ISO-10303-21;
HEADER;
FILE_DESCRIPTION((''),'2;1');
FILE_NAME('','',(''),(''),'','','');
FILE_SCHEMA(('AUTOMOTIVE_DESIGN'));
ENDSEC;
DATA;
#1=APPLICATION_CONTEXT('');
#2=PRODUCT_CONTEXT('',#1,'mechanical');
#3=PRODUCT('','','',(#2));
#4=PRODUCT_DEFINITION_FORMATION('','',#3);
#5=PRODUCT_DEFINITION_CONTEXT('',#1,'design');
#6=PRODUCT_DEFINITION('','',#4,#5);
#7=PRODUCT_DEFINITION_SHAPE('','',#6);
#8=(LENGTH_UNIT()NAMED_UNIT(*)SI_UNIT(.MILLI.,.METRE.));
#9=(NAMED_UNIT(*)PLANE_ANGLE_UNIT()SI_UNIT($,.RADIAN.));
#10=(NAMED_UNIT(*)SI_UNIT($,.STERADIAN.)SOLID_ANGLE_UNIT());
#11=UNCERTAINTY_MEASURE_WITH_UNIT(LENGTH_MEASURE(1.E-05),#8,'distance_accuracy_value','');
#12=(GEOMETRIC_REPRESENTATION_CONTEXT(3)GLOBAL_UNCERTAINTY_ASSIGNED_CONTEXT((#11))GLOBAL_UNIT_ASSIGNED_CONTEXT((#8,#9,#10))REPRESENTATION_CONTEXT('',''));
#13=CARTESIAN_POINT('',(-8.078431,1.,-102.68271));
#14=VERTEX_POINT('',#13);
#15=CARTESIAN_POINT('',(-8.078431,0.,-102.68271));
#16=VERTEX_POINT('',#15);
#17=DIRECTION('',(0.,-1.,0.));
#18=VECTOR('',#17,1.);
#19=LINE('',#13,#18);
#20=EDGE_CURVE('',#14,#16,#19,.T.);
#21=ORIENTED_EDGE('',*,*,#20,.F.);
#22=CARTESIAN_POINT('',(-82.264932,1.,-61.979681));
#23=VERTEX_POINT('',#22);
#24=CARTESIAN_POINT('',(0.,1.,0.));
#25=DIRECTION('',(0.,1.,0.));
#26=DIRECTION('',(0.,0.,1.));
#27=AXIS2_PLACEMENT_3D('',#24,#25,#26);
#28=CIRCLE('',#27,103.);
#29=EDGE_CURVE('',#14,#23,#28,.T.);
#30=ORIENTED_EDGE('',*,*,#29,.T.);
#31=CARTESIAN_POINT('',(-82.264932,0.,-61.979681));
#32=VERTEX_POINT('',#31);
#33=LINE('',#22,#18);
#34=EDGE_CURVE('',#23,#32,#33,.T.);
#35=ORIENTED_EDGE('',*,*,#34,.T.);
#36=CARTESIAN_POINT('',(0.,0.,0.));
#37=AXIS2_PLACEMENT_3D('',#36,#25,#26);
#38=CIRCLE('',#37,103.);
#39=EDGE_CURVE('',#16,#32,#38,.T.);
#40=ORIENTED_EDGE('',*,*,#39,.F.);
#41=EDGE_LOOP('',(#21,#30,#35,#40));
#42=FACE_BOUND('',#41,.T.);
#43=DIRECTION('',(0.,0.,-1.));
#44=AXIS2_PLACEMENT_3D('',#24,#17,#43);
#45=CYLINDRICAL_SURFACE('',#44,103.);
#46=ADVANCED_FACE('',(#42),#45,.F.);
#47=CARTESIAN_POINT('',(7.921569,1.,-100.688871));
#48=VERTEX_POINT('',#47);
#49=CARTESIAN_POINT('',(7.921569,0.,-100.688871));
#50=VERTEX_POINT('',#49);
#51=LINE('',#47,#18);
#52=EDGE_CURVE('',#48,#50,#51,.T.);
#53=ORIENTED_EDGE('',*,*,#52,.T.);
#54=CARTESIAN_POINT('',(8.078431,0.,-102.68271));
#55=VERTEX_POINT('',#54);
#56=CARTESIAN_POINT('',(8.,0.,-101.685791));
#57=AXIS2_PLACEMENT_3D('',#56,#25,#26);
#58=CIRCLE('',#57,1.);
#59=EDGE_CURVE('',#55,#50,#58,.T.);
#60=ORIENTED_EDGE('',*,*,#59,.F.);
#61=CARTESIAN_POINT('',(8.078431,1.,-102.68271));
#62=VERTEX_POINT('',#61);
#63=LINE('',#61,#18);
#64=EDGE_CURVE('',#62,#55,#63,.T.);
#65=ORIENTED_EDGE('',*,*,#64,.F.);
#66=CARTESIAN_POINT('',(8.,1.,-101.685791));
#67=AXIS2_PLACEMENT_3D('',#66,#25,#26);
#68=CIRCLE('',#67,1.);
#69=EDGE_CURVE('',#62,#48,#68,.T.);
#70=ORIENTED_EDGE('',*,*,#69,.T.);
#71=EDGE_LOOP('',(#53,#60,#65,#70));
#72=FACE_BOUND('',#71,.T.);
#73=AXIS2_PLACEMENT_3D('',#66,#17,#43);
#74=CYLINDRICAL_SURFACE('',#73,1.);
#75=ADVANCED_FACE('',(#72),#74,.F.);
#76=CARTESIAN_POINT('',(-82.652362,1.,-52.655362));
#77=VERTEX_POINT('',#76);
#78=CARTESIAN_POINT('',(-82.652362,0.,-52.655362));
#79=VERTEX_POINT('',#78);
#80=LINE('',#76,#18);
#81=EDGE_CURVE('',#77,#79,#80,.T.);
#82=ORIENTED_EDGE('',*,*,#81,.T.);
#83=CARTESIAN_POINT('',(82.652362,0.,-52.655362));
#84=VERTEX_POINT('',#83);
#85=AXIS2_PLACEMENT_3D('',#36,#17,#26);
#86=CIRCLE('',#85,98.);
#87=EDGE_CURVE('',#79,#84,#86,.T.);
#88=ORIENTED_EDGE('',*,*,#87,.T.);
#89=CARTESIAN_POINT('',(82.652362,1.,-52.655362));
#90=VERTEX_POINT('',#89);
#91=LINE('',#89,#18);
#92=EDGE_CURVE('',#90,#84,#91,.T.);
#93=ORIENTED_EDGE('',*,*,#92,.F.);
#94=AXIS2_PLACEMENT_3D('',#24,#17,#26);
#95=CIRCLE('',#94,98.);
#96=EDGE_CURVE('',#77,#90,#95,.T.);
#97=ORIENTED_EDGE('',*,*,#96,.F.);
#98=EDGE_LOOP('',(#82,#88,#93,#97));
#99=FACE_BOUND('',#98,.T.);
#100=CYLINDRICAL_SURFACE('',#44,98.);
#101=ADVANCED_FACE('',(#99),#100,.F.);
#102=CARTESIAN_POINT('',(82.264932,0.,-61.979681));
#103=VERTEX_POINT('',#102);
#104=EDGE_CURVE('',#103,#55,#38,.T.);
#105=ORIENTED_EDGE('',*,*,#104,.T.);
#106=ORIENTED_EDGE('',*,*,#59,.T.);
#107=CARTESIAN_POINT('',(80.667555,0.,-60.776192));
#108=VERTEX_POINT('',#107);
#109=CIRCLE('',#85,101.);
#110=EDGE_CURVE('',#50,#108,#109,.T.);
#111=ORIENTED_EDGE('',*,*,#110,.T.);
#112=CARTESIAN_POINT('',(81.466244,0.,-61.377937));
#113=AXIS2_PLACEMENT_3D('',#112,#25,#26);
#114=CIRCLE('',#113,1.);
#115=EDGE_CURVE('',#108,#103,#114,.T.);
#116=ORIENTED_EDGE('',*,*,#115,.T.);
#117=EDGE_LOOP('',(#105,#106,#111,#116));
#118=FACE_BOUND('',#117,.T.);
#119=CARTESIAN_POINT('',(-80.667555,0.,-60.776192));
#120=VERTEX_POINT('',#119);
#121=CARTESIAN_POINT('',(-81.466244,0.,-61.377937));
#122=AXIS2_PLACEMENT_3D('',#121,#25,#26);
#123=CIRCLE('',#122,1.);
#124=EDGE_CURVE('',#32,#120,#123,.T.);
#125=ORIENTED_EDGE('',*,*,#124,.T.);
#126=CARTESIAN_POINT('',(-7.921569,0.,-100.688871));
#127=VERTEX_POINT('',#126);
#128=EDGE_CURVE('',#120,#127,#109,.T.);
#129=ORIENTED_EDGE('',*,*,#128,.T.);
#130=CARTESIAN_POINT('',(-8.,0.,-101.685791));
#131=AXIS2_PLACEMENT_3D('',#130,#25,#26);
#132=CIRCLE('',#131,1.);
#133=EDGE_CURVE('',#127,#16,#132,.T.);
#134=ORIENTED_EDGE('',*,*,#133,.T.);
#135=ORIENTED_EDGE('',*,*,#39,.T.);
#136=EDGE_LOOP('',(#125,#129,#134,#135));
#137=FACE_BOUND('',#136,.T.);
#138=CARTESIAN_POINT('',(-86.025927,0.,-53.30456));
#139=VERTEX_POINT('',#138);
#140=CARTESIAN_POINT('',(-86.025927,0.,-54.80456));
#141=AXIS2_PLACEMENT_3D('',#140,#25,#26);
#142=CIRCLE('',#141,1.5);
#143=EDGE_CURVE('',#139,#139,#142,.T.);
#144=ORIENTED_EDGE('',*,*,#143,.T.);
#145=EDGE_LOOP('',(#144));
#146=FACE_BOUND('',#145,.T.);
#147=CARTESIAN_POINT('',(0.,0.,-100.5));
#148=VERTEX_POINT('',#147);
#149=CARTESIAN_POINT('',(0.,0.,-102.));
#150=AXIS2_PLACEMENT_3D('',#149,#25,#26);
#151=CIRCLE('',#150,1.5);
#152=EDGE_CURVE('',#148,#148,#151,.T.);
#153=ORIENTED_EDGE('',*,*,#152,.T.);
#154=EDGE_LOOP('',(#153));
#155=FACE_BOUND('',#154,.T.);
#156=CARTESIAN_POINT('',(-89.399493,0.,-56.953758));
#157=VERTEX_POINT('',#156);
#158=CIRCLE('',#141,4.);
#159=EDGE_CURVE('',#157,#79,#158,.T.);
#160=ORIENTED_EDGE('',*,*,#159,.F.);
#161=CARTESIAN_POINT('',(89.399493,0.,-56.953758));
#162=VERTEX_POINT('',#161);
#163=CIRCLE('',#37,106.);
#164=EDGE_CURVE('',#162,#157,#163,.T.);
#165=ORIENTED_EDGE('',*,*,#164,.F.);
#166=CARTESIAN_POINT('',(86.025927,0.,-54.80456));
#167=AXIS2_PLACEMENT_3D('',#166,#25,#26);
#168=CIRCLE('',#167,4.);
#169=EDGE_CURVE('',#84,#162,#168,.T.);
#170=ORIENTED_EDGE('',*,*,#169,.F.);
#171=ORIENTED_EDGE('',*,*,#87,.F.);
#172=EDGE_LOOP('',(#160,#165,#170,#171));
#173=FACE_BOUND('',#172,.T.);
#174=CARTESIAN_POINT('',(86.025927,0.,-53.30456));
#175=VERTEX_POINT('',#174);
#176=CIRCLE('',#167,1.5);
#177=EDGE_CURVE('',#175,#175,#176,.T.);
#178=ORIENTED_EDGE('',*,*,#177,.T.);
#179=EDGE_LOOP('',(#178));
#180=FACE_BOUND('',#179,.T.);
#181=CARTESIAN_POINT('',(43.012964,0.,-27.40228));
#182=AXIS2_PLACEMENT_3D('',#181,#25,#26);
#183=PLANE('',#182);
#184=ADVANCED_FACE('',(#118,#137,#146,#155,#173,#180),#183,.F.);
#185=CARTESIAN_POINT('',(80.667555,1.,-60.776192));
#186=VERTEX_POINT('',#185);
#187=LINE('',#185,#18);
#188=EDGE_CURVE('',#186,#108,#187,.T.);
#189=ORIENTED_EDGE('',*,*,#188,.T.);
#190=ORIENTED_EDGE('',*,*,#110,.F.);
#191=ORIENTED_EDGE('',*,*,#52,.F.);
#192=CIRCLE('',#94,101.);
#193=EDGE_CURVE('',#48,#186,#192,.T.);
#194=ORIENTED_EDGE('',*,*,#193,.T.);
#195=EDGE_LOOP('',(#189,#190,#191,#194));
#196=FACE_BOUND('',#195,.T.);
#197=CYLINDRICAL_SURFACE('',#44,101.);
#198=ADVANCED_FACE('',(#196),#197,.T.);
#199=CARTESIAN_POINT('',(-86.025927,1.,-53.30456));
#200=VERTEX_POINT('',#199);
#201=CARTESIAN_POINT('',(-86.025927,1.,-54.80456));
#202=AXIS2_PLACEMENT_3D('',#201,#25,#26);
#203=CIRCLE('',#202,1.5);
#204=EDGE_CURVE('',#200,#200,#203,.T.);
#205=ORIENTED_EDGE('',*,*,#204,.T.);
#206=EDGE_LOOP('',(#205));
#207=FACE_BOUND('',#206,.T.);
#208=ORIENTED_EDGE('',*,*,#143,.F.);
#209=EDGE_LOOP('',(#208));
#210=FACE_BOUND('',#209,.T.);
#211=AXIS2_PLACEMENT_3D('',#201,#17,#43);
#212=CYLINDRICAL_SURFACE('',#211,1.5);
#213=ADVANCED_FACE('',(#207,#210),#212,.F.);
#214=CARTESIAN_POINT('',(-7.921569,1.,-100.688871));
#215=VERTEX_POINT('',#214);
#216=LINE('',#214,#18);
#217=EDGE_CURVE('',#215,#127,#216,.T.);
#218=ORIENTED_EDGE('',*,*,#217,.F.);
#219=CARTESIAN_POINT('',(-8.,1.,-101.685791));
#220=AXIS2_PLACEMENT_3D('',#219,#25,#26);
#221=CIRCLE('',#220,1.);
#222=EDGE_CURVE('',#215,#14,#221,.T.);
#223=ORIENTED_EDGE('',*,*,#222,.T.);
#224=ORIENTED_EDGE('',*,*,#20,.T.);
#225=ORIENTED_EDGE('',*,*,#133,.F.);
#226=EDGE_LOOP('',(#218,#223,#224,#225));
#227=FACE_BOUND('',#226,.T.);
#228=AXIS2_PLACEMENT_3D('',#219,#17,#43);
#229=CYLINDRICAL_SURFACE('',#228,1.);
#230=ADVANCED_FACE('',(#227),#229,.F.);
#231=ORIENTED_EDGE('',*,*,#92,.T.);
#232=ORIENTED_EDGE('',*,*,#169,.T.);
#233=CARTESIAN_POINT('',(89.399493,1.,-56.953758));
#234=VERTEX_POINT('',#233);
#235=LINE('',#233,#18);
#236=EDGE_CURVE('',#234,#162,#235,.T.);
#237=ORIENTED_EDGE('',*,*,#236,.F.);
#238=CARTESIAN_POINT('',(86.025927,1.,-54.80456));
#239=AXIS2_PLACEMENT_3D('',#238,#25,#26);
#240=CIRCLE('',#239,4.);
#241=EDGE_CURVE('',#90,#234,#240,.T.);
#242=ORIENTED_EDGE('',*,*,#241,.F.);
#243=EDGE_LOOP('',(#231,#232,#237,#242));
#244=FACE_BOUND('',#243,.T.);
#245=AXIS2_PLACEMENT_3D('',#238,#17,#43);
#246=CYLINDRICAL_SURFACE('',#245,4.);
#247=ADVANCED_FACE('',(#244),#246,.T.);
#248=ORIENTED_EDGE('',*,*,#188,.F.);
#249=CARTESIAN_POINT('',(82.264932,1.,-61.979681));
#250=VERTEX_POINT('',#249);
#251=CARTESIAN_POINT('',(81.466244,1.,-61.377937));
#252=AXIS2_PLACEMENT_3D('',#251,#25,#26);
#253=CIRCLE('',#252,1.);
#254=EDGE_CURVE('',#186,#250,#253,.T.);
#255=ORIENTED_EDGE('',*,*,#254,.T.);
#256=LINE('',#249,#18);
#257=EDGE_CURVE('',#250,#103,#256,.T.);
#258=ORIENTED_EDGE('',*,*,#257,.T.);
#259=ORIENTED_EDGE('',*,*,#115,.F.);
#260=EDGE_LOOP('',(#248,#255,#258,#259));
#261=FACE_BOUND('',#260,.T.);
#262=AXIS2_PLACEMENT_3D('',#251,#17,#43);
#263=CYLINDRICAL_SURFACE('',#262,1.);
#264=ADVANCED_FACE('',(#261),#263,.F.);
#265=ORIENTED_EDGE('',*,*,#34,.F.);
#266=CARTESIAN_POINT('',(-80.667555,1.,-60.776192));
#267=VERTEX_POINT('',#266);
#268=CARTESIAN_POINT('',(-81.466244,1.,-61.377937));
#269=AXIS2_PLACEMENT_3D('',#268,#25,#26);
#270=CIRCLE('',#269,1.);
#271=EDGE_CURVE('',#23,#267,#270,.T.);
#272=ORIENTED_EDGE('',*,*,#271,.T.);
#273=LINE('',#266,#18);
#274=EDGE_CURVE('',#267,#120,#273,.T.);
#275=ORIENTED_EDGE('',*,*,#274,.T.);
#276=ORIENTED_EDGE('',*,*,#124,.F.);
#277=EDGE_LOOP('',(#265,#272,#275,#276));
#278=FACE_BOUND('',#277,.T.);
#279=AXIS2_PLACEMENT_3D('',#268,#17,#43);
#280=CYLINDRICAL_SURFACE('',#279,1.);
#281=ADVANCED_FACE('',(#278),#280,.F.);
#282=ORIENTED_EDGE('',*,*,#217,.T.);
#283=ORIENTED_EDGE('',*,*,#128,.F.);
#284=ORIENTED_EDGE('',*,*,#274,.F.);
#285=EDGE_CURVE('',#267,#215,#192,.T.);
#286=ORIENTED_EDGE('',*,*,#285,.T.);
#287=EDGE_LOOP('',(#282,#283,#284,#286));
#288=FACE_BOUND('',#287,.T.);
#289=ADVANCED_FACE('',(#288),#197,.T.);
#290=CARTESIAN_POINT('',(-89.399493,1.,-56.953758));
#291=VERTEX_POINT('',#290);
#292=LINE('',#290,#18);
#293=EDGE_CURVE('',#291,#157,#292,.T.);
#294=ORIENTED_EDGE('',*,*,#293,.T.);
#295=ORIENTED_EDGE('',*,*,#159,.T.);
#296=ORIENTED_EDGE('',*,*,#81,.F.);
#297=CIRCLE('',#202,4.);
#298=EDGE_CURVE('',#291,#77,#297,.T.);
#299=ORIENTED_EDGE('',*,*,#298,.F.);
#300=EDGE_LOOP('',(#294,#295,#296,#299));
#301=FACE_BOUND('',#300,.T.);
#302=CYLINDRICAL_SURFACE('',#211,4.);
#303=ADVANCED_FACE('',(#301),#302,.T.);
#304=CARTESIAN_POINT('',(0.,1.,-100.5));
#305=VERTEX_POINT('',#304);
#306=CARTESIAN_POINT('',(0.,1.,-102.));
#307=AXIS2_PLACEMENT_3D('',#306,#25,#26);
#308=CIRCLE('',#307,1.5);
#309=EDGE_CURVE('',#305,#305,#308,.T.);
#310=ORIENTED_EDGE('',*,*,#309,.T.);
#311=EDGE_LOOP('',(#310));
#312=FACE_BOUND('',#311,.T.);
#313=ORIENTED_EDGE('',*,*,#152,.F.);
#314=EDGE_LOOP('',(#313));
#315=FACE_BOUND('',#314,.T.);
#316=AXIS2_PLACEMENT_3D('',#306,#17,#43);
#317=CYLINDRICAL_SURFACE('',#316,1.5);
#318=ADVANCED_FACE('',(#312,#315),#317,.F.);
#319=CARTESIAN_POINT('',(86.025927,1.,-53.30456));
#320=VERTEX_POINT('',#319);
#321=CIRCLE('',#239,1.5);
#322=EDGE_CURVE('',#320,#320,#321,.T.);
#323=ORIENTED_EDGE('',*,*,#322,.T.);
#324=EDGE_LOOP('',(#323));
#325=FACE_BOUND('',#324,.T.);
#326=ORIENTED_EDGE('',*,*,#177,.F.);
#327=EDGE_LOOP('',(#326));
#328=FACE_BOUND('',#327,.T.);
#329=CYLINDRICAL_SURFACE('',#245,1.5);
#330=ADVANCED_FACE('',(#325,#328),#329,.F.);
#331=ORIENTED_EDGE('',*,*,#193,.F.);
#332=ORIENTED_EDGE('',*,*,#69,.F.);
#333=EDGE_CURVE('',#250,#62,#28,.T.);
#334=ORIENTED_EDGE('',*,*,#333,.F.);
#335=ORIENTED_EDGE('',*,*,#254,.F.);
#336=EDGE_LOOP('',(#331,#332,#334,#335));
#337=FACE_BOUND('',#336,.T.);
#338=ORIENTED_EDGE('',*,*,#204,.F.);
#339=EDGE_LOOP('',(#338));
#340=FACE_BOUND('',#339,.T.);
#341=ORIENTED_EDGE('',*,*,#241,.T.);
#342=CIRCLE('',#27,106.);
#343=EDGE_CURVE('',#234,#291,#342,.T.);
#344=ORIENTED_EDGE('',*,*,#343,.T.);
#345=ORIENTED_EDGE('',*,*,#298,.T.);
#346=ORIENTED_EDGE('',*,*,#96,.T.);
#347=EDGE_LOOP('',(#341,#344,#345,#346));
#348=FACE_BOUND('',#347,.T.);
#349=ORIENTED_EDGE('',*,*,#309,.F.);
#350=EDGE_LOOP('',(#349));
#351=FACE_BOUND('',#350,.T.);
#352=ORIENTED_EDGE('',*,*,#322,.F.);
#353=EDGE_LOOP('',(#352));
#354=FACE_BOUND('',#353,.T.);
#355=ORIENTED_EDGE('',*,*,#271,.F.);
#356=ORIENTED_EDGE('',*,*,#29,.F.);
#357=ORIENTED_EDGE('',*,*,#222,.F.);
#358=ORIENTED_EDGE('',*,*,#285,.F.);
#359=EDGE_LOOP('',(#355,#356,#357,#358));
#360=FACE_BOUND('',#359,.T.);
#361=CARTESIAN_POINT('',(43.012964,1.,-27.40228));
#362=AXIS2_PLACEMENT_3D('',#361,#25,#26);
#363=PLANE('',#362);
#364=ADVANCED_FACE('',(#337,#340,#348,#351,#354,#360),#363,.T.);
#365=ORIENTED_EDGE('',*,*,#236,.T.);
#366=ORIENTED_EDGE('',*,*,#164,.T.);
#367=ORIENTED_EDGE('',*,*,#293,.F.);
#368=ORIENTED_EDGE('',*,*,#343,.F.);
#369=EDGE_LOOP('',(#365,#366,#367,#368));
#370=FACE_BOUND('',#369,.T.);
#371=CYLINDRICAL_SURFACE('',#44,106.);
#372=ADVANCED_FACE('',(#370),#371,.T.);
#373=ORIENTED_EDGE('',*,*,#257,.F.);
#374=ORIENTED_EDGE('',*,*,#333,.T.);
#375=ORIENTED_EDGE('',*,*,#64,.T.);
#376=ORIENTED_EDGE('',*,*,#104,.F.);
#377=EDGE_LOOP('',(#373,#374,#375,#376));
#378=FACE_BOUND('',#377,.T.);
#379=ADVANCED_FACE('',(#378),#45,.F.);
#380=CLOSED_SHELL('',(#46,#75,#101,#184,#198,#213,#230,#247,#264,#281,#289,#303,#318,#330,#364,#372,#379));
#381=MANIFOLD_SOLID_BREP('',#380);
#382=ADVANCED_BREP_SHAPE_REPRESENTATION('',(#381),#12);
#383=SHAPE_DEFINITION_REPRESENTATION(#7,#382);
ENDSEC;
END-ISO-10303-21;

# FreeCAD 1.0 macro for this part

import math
import FreeCAD as App
import Part
import Sketcher
Q = App.Units.Quantity

doc = App.newDocument("Part")
body = doc.addObject("PartDesign::Body", "Body")

sketch1 = body.newObject("Sketcher::SketchObject", "Sketch")
sketch1.AttachmentSupport = (doc.getObject("XZ_Plane"), [""])
sketch1.MapMode = "FlatFace"
sketch1.addGeometry(Part.ArcOfCircle(Part.Circle(App.Vector(0, 0, 0), App.Vector(0, 0, 1), 106), math.radians(-147.5), math.radians(-32.5)), False)
sketch1.addGeometry(Part.ArcOfCircle(Part.Circle(App.Vector(-86.025927, -54.80456, 0), App.Vector(0, 0, 1), 4), math.radians(32.5), math.radians(212.5)), False)
sketch1.addGeometry(Part.ArcOfCircle(Part.Circle(App.Vector(0, 0, 0), App.Vector(0, 0, 1), 98), math.radians(-147.5), math.radians(-32.5)), False)
sketch1.addGeometry(Part.ArcOfCircle(Part.Circle(App.Vector(86.025927, -54.80456, 0), App.Vector(0, 0, 1), 4), math.radians(-32.5), math.radians(147.5)), False)
sketch1.addGeometry(Part.Circle(App.Vector(-86.025927, -54.80456, 0), App.Vector(0, 0, 1), 1.5), False)
sketch1.addGeometry(Part.Circle(App.Vector(86.025927, -54.80456, 0), App.Vector(0, 0, 1), 1.5), False)
sketch1.addGeometry(Part.ArcOfCircle(Part.Circle(App.Vector(0, 0, 0), App.Vector(0, 0, 1), 103), math.radians(-143.005061), math.radians(-94.498407)), False)
sketch1.addGeometry(Part.ArcOfCircle(Part.Circle(App.Vector(-8, -101.685791, 0), App.Vector(0, 0, 1), 1), math.radians(-94.498407), math.radians(85.501593)), False)
sketch1.addGeometry(Part.ArcOfCircle(Part.Circle(App.Vector(0, 0, 0), App.Vector(0, 0, 1), 101), math.radians(-143.005061), math.radians(-94.498407)), False)
sketch1.addGeometry(Part.ArcOfCircle(Part.Circle(App.Vector(-81.466244, -61.377937, 0), App.Vector(0, 0, 1), 1), math.radians(36.994939), math.radians(216.994939)), False)
sketch1.addGeometry(Part.ArcOfCircle(Part.Circle(App.Vector(0, 0, 0), App.Vector(0, 0, 1), 103), math.radians(-85.501593), math.radians(-36.994939)), False)
sketch1.addGeometry(Part.ArcOfCircle(Part.Circle(App.Vector(81.466244, -61.377937, 0), App.Vector(0, 0, 1), 1), math.radians(-36.994939), math.radians(143.005061)), False)
sketch1.addGeometry(Part.ArcOfCircle(Part.Circle(App.Vector(0, 0, 0), App.Vector(0, 0, 1), 101), math.radians(-85.501593), math.radians(-36.994939)), False)
sketch1.addGeometry(Part.ArcOfCircle(Part.Circle(App.Vector(8, -101.685791, 0), App.Vector(0, 0, 1), 1), math.radians(94.498407), math.radians(274.498407)), False)
sketch1.addGeometry(Part.Circle(App.Vector(0, -102, 0), App.Vector(0, 0, 1), 1.5), False)
sketch1.addConstraint(Sketcher.Constraint("Tangent", 0, 1, 1, 2))
sketch1.addConstraint(Sketcher.Constraint("Tangent", 1, 1, 2, 1))
sketch1.addConstraint(Sketcher.Constraint("Tangent", 2, 2, 3, 2))
sketch1.addConstraint(Sketcher.Constraint("Tangent", 3, 1, 0, 2))
sketch1.addConstraint(Sketcher.Constraint("Tangent", 6, 2, 7, 1))
sketch1.addConstraint(Sketcher.Constraint("Tangent", 7, 2, 8, 2))
sketch1.addConstraint(Sketcher.Constraint("Tangent", 8, 1, 9, 1))
sketch1.addConstraint(Sketcher.Constraint("Tangent", 9, 2, 6, 1))
sketch1.addConstraint(Sketcher.Constraint("Tangent", 10, 2, 11, 1))
sketch1.addConstraint(Sketcher.Constraint("Tangent", 11, 2, 12, 2))
sketch1.addConstraint(Sketcher.Constraint("Tangent", 12, 1, 13, 1))
sketch1.addConstraint(Sketcher.Constraint("Tangent", 13, 2, 10, 1))
sketch1.addConstraint(Sketcher.Constraint("Coincident", 0, 3, -1, 1))
sketch1.addConstraint(Sketcher.Constraint("Coincident", 2, 3, -1, 1))
sketch1.addConstraint(Sketcher.Constraint("Coincident", 6, 3, -1, 1))
sketch1.addConstraint(Sketcher.Constraint("Coincident", 8, 3, -1, 1))
sketch1.addConstraint(Sketcher.Constraint("Coincident", 10, 3, -1, 1))
sketch1.addConstraint(Sketcher.Constraint("Coincident", 12, 3, -1, 1))
sketch1.addConstraint(Sketcher.Constraint("Coincident", 4, 3, 1, 3))
sketch1.addConstraint(Sketcher.Constraint("Coincident", 5, 3, 3, 3))
sketch1.addConstraint(Sketcher.Constraint("Equal", 4, 5))
sketch1.addConstraint(Sketcher.Constraint("Equal", 6, 10))
sketch1.addConstraint(Sketcher.Constraint("Equal", 9, 11))
sketch1.addConstraint(Sketcher.Constraint("Equal", 5, 14))
sketch1.addConstraint(Sketcher.Constraint("PointOnObject", 14, 3, -2))
sketch1.addConstraint(Sketcher.Constraint("Horizontal", 1, 3, 3, 3))
sketch1.addConstraint(Sketcher.Constraint("Horizontal", 9, 3, 11, 3))
sketch1.addConstraint(Sketcher.Constraint("Horizontal", 7, 3, 13, 3))
sketch1.addConstraint(Sketcher.Constraint("Diameter", 4, Q("3 mm")))
sketch1.addConstraint(Sketcher.Constraint("Radius", 0, Q("106 mm")))
sketch1.addConstraint(Sketcher.Constraint("Radius", 1, Q("4 mm")))
sketch1.addConstraint(Sketcher.Constraint("Radius", 6, Q("103 mm")))
sketch1.addConstraint(Sketcher.Constraint("Radius", 7, Q("1 mm")))
sketch1.addConstraint(Sketcher.Constraint("DistanceX", 7, 3, -1, 1, Q("8 mm")))
sketch1.addConstraint(Sketcher.Constraint("DistanceY", 14, 3, -1, 1, Q("102 mm")))
sketch1.addConstraint(Sketcher.Constraint("DistanceY", 1, 3, 1, 1, Q("2.149198 mm")))
sketch1.addConstraint(Sketcher.Constraint("DistanceY", 9, 2, -1, 1, Q("61.979681 mm")))
pad1 = body.newObject("PartDesign::Pad", "Pad")
pad1.Profile = sketch1
pad1.Length = 1
pad1.Reversed = True

doc.recompute()
